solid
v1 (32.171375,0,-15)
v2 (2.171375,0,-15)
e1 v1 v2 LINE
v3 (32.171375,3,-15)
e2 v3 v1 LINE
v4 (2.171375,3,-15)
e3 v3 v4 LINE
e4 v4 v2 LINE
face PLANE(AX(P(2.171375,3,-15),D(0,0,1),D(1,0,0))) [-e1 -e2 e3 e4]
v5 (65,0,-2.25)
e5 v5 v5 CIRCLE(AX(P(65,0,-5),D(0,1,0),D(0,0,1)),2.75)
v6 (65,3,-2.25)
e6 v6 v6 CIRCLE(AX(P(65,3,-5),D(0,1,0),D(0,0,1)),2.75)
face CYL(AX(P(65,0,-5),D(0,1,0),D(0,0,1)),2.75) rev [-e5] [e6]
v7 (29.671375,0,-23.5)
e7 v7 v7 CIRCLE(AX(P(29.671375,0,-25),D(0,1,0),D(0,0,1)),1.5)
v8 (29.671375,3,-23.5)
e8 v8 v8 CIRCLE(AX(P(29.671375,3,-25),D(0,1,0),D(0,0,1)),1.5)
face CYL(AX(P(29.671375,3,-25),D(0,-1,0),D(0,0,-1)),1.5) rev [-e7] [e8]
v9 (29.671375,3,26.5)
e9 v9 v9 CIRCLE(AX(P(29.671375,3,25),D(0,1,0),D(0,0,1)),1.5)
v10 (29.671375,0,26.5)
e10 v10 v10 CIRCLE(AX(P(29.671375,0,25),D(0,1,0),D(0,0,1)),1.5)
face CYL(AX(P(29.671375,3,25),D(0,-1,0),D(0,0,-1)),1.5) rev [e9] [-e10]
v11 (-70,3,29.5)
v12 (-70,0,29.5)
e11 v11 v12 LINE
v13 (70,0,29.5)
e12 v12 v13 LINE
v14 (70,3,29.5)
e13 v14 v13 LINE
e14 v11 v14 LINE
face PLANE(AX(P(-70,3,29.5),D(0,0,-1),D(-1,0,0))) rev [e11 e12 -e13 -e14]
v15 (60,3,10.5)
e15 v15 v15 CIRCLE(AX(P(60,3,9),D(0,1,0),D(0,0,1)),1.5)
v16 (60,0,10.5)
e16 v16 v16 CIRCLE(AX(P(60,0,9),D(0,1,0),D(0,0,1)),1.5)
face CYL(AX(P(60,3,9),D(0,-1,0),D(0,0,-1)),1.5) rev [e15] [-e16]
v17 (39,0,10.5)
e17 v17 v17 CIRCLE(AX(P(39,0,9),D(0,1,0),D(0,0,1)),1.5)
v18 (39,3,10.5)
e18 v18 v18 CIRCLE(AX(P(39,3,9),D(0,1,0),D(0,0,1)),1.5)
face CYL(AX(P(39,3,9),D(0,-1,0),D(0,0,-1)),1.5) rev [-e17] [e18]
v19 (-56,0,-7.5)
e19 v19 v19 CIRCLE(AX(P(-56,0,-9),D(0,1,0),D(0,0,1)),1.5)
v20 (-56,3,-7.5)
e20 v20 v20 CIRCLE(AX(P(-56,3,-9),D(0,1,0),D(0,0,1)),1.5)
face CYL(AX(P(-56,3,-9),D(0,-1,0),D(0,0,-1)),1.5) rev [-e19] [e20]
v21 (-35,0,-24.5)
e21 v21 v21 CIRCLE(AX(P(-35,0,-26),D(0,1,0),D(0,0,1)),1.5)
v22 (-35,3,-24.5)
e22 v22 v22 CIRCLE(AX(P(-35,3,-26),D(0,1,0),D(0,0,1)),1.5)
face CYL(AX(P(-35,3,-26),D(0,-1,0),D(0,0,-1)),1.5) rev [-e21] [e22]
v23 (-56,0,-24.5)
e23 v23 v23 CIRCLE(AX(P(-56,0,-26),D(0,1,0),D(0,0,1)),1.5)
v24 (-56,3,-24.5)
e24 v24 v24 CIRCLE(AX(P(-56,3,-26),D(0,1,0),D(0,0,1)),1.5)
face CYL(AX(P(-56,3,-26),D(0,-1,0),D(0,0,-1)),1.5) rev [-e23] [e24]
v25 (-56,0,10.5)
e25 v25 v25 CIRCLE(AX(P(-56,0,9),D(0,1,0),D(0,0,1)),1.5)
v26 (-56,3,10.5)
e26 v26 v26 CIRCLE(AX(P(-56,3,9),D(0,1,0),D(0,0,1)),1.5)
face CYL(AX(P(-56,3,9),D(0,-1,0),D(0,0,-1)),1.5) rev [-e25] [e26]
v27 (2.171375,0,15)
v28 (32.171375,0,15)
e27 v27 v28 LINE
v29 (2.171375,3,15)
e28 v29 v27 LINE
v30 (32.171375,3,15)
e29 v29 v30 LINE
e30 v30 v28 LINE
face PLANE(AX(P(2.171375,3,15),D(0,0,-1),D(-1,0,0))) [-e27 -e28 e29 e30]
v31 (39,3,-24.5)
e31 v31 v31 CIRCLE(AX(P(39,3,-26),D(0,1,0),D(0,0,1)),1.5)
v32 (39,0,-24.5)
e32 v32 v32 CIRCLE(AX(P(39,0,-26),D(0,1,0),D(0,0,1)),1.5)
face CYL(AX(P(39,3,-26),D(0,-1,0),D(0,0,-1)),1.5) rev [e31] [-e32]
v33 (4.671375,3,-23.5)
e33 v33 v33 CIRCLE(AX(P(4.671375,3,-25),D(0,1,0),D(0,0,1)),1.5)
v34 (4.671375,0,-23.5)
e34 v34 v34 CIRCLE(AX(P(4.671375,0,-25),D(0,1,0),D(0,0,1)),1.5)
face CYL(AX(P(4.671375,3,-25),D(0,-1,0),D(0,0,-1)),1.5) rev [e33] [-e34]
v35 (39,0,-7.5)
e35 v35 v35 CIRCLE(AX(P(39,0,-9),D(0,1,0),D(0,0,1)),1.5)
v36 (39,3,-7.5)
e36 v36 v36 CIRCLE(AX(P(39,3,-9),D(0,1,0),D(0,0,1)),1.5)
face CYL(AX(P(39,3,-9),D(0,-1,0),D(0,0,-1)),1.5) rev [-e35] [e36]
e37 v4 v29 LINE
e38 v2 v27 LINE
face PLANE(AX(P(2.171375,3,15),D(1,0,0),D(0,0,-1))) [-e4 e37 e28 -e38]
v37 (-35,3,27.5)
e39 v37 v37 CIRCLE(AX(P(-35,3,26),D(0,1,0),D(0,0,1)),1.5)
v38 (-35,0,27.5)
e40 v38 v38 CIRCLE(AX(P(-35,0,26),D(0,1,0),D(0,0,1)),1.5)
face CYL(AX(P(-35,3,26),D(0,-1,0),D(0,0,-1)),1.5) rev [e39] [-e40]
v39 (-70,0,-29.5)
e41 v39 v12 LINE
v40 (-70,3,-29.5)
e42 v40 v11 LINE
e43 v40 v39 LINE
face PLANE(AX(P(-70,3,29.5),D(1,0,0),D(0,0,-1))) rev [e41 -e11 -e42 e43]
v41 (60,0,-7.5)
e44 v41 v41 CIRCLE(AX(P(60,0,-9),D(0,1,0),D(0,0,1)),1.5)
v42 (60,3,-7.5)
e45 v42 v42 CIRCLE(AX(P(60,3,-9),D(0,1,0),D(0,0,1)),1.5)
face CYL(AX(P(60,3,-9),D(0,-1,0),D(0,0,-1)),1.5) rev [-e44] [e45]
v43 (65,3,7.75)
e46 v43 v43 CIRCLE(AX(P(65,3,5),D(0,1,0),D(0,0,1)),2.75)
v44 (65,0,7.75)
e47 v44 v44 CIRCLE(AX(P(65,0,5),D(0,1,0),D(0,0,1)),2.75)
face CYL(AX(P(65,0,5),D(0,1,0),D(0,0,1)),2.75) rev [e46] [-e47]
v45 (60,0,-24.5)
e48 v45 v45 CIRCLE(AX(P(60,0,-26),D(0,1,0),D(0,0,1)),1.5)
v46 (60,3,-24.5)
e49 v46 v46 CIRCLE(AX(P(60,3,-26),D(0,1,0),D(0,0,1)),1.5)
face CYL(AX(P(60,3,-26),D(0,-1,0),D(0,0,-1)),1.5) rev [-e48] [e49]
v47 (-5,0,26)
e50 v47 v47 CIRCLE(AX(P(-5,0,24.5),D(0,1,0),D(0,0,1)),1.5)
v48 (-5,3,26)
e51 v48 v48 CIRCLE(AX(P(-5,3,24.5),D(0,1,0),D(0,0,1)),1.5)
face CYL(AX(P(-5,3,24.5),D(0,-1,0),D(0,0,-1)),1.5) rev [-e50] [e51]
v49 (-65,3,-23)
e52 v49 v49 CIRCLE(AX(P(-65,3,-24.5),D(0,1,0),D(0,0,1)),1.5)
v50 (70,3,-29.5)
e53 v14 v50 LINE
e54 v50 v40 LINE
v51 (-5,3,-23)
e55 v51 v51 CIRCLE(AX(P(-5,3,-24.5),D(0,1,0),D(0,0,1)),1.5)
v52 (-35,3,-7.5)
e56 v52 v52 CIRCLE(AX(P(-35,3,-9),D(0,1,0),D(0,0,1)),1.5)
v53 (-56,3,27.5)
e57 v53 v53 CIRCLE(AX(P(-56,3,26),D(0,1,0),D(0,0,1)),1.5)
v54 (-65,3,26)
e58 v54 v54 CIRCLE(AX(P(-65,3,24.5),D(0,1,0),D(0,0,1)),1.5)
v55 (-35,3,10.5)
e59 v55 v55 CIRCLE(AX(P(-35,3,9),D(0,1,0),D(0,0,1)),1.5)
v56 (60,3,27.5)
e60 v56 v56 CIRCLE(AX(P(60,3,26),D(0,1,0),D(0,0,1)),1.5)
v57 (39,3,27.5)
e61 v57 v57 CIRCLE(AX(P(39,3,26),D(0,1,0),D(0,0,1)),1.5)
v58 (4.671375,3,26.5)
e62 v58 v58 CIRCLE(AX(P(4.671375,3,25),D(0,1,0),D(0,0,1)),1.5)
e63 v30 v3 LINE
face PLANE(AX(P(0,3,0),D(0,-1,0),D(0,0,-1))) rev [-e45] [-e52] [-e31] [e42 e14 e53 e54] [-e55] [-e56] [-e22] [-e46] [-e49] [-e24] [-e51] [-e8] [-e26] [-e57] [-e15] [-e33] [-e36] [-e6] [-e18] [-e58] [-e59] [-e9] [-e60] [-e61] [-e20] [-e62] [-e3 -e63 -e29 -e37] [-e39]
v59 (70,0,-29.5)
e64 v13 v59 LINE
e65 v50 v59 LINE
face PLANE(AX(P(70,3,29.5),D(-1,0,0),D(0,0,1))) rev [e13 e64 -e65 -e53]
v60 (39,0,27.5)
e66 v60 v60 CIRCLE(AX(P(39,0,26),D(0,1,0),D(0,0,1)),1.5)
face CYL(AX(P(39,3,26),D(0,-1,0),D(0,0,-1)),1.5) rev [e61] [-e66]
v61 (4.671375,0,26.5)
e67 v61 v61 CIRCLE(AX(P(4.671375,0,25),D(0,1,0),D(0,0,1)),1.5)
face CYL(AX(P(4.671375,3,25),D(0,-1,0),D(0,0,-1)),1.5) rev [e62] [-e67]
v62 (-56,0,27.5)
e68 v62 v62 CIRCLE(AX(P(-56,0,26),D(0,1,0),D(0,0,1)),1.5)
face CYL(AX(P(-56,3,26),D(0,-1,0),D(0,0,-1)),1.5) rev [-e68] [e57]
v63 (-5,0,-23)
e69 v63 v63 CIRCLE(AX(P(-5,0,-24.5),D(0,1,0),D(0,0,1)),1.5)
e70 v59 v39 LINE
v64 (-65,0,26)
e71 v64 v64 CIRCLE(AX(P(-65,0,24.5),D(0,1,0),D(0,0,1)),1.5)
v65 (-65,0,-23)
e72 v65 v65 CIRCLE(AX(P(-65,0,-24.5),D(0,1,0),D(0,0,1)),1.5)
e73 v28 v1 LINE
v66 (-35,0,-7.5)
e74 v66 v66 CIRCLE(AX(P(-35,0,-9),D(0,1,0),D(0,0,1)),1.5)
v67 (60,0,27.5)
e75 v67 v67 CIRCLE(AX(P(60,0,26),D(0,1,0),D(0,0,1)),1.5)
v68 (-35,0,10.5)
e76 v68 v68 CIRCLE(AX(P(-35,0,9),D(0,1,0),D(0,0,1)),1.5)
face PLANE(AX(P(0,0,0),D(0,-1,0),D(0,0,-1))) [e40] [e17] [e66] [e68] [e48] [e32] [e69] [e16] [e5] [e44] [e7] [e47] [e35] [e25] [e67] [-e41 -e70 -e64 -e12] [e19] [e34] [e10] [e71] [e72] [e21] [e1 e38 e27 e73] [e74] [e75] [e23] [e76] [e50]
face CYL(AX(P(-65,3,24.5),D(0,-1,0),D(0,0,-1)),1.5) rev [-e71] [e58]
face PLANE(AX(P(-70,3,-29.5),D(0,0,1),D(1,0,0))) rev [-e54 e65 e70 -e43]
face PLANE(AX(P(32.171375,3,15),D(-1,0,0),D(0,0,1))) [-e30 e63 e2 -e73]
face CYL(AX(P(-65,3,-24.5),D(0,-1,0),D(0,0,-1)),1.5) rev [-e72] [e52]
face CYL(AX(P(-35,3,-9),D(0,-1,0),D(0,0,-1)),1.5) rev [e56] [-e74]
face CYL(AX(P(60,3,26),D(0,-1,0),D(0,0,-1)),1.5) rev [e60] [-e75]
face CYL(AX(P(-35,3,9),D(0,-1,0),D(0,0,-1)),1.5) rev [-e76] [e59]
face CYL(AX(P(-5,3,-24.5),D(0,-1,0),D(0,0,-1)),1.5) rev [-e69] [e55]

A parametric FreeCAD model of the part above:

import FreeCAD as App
import Part
import Sketcher
from FreeCAD import Vector


def add_polygon(sketch, points):
    """Adds a closed chain of lines whose ends are joined by coincident constraints."""
    first, n = sketch.GeometryCount, len(points)
    for a, b in zip(points, points[1:] + points[:1]):
        sketch.addGeometry(Part.LineSegment(App.Vector(*a, 0), App.Vector(*b, 0)), False)
    for i in range(n):
        sketch.addConstraint(Sketcher.Constraint("Coincident", first + i, 2, first + (i + 1) % n, 1))

doc = App.newDocument("Part")
body = doc.addObject("PartDesign::Body", "Body")

# Sketch on XZ plane
sketch1 = body.newObject("Sketcher::SketchObject", "Sketch")
sketch1.AttachmentSupport = (doc.getObject("XZ_Plane"), [""])
sketch1.MapMode = "FlatFace"
add_polygon(sketch1, [(-70, -29.5), (-70, 29.5), (70, 29.5), (70, -29.5)])  # lines 0-3
sketch1.addGeometry(Part.Circle(Vector(-65, 24.5, 0), Vector(0, 0, 1), 1.5), False)  # 4
sketch1.addGeometry(Part.Circle(Vector(-56, 26, 0), Vector(0, 0, 1), 1.5), False)  # 5
sketch1.addGeometry(Part.Circle(Vector(-35, 26, 0), Vector(0, 0, 1), 1.5), False)  # 6
sketch1.addGeometry(Part.Circle(Vector(-5, 24.5, 0), Vector(0, 0, 1), 1.5), False)  # 7
sketch1.addGeometry(Part.Circle(Vector(-56, 9, 0), Vector(0, 0, 1), 1.5), False)  # 8
sketch1.addGeometry(Part.Circle(Vector(-35, 9, 0), Vector(0, 0, 1), 1.5), False)  # 9
sketch1.addGeometry(Part.Circle(Vector(4.7, 25, 0), Vector(0, 0, 1), 1.5), False)  # 10
sketch1.addGeometry(Part.Circle(Vector(29.7, 25, 0), Vector(0, 0, 1), 1.5), False)  # 11
sketch1.addGeometry(Part.Circle(Vector(39, 26, 0), Vector(0, 0, 1), 1.5), False)  # 12
sketch1.addGeometry(Part.Circle(Vector(60, 26, 0), Vector(0, 0, 1), 1.5), False)  # 13
sketch1.addGeometry(Part.Circle(Vector(39, 9, 0), Vector(0, 0, 1), 1.5), False)  # 14
sketch1.addGeometry(Part.Circle(Vector(60, 9, 0), Vector(0, 0, 1), 1.5), False)  # 15
sketch1.addGeometry(Part.Circle(Vector(-56, -9, 0), Vector(0, 0, 1), 1.5), False)  # 16
sketch1.addGeometry(Part.Circle(Vector(-35, -9, 0), Vector(0, 0, 1), 1.5), False)  # 17
sketch1.addGeometry(Part.Circle(Vector(-65, -24.5, 0), Vector(0, 0, 1), 1.5), False)  # 18
sketch1.addGeometry(Part.Circle(Vector(-56, -26, 0), Vector(0, 0, 1), 1.5), False)  # 19
sketch1.addGeometry(Part.Circle(Vector(-35, -26, 0), Vector(0, 0, 1), 1.5), False)  # 20
sketch1.addGeometry(Part.Circle(Vector(-5, -24.5, 0), Vector(0, 0, 1), 1.5), False)  # 21
add_polygon(sketch1, [(32.2, 15), (2.2, 15), (2.2, -15), (32.2, -15)])  # lines 22-25
sketch1.addGeometry(Part.Circle(Vector(39, -9, 0), Vector(0, 0, 1), 1.5), False)  # 26
sketch1.addGeometry(Part.Circle(Vector(60, -9, 0), Vector(0, 0, 1), 1.5), False)  # 27
sketch1.addGeometry(Part.Circle(Vector(4.7, -25, 0), Vector(0, 0, 1), 1.5), False)  # 28
sketch1.addGeometry(Part.Circle(Vector(29.7, -25, 0), Vector(0, 0, 1), 1.5), False)  # 29
sketch1.addGeometry(Part.Circle(Vector(39, -26, 0), Vector(0, 0, 1), 1.5), False)  # 30
sketch1.addGeometry(Part.Circle(Vector(60, -26, 0), Vector(0, 0, 1), 1.5), False)  # 31
sketch1.addConstraint(Sketcher.Constraint("Vertical", 0))
sketch1.addConstraint(Sketcher.Constraint("Horizontal", 1))
sketch1.addConstraint(Sketcher.Constraint("Vertical", 2))
sketch1.addConstraint(Sketcher.Constraint("Horizontal", 3))
sketch1.addConstraint(Sketcher.Constraint("Horizontal", 22))
sketch1.addConstraint(Sketcher.Constraint("Vertical", 23))
sketch1.addConstraint(Sketcher.Constraint("Horizontal", 24))
sketch1.addConstraint(Sketcher.Constraint("Vertical", 25))
sketch1.addConstraint(Sketcher.Constraint("Equal", 4, 5))
sketch1.addConstraint(Sketcher.Constraint("Equal", 5, 6))
sketch1.addConstraint(Sketcher.Constraint("Equal", 6, 7))
sketch1.addConstraint(Sketcher.Constraint("Equal", 7, 8))
sketch1.addConstraint(Sketcher.Constraint("Equal", 8, 9))
sketch1.addConstraint(Sketcher.Constraint("Equal", 9, 10))
sketch1.addConstraint(Sketcher.Constraint("Equal", 10, 11))
sketch1.addConstraint(Sketcher.Constraint("Equal", 11, 12))
sketch1.addConstraint(Sketcher.Constraint("Equal", 12, 13))
sketch1.addConstraint(Sketcher.Constraint("Equal", 13, 14))
sketch1.addConstraint(Sketcher.Constraint("Equal", 14, 15))
sketch1.addConstraint(Sketcher.Constraint("Equal", 15, 16))
sketch1.addConstraint(Sketcher.Constraint("Equal", 16, 17))
sketch1.addConstraint(Sketcher.Constraint("Equal", 17, 18))
sketch1.addConstraint(Sketcher.Constraint("Equal", 18, 19))
sketch1.addConstraint(Sketcher.Constraint("Equal", 19, 20))
sketch1.addConstraint(Sketcher.Constraint("Equal", 20, 21))
sketch1.addConstraint(Sketcher.Constraint("Equal", 21, 26))
sketch1.addConstraint(Sketcher.Constraint("Equal", 26, 27))
sketch1.addConstraint(Sketcher.Constraint("Equal", 27, 28))
sketch1.addConstraint(Sketcher.Constraint("Equal", 28, 29))
sketch1.addConstraint(Sketcher.Constraint("Equal", 29, 30))
sketch1.addConstraint(Sketcher.Constraint("Equal", 30, 31))
sketch1.addConstraint(Sketcher.Constraint("Symmetric", 0, 2, 2, 2, -1, 1))
sketch1.addConstraint(Sketcher.Constraint("Symmetric", 8, 3, 16, 3, -1))
sketch1.addConstraint(Sketcher.Constraint("Symmetric", 9, 3, 17, 3, -1))
sketch1.addConstraint(Sketcher.Constraint("Symmetric", 4, 3, 18, 3, -1))
sketch1.addConstraint(Sketcher.Constraint("Symmetric", 5, 3, 19, 3, -1))
sketch1.addConstraint(Sketcher.Constraint("Symmetric", 6, 3, 20, 3, -1))
sketch1.addConstraint(Sketcher.Constraint("Symmetric", 7, 3, 21, 3, -1))
sketch1.addConstraint(Sketcher.Constraint("Symmetric", 14, 3, 26, 3, -1))
sketch1.addConstraint(Sketcher.Constraint("Symmetric", 15, 3, 27, 3, -1))
sketch1.addConstraint(Sketcher.Constraint("Symmetric", 10, 3, 28, 3, -1))
sketch1.addConstraint(Sketcher.Constraint("Symmetric", 11, 3, 29, 3, -1))
sketch1.addConstraint(Sketcher.Constraint("Symmetric", 12, 3, 30, 3, -1))
sketch1.addConstraint(Sketcher.Constraint("Symmetric", 13, 3, 31, 3, -1))
sketch1.addConstraint(Sketcher.Constraint("Horizontal", 5, 3, 6, 3))
sketch1.addConstraint(Sketcher.Constraint("Horizontal", 4, 3, 7, 3))
sketch1.addConstraint(Sketcher.Constraint("Horizontal", 8, 3, 9, 3))
sketch1.addConstraint(Sketcher.Constraint("Horizontal", 10, 3, 11, 3))
sketch1.addConstraint(Sketcher.Constraint("Horizontal", 6, 3, 12, 3))
sketch1.addConstraint(Sketcher.Constraint("Horizontal", 12, 3, 13, 3))
sketch1.addConstraint(Sketcher.Constraint("Horizontal", 9, 3, 14, 3))
sketch1.addConstraint(Sketcher.Constraint("Horizontal", 14, 3, 15, 3))
sketch1.addConstraint(Sketcher.Constraint("Vertical", 5, 3, 8, 3))
sketch1.addConstraint(Sketcher.Constraint("Vertical", 6, 3, 9, 3))
sketch1.addConstraint(Sketcher.Constraint("Vertical", 12, 3, 14, 3))
sketch1.addConstraint(Sketcher.Constraint("Vertical", 13, 3, 15, 3))
sketch1.addConstraint(Sketcher.Constraint("Equal", 24, 23))
sketch1.addConstraint(Sketcher.Constraint("Diameter", 4, 3.0))
sketch1.addConstraint(Sketcher.Constraint("DistanceX", 1, 1, 1, 2, 140.0))
sketch1.addConstraint(Sketcher.Constraint("DistanceX", 22, 2, 22, 1, 30.0))
sketch1.addConstraint(Sketcher.Constraint("DistanceY", 0, 1, 0, 2, 59.0))
sketch1.addConstraint(Sketcher.Constraint("DistanceX", 4, 3, -1, 1, 65.0))
sketch1.addConstraint(Sketcher.Constraint("DistanceX", 5, 3, -1, 1, 56.0))
sketch1.addConstraint(Sketcher.Constraint("DistanceY", -1, 1, 5, 3, 26.0))
sketch1.addConstraint(Sketcher.Constraint("DistanceX", 6, 3, -1, 1, 35.0))
sketch1.addConstraint(Sketcher.Constraint("DistanceX", 7, 3, -1, 1, 5.0))
sketch1.addConstraint(Sketcher.Constraint("DistanceY", -1, 1, 8, 3, 9.0))
sketch1.addConstraint(Sketcher.Constraint("DistanceY", -1, 1, 10, 3, 25.0))
sketch1.addConstraint(Sketcher.Constraint("DistanceX", -1, 1, 12, 3, 39.0))
sketch1.addConstraint(Sketcher.Constraint("DistanceX", -1, 1, 13, 3, 60.0))
sketch1.addConstraint(Sketcher.Constraint("DistanceY", -1, 1, 22, 2, 15.0))
sketch1.addConstraint(Sketcher.Constraint("DistanceX", 10, 3, 11, 3, 25.0))
sketch1.addConstraint(Sketcher.Constraint("DistanceY", 18, 3, 4, 3, 49.0))
sketch1.addConstraint(Sketcher.Constraint("DistanceX", 22, 2, 10, 3, 2.5))
sketch1.addConstraint(Sketcher.Constraint("DistanceX", -1, 1, 10, 3, 4.671375))
pad1 = body.newObject("PartDesign::Pad", "Pad")
pad1.Profile = sketch1
pad1.Length = 3
pad1.Reversed = True

# Sketch on XZ plane
sketch2 = body.newObject("Sketcher::SketchObject", "Sketch001")
sketch2.AttachmentSupport = (doc.getObject("XZ_Plane"), [""])
sketch2.MapMode = "FlatFace"
sketch2.AttachmentOffset = App.Placement(Vector(0, 0, -3), App.Rotation())
sketch2.addGeometry(Part.Circle(Vector(65, -5, 0), Vector(0, 0, 1), 2.8), False)
sketch2.addGeometry(Part.Circle(Vector(65, 5, 0), Vector(0, 0, 1), 2.8), False)
sketch2.addConstraint(Sketcher.Constraint("Equal", 0, 1))
sketch2.addConstraint(Sketcher.Constraint("Symmetric", 0, 3, 1, 3, -1))
sketch2.addConstraint(Sketcher.Constraint("Diameter", 0, 5.5))
sketch2.addConstraint(Sketcher.Constraint("DistanceX", -1, 1, 0, 3, 65.0))
sketch2.addConstraint(Sketcher.Constraint("DistanceY", 0, 3, -1, 1, 5.0))
pocket1 = body.newObject("PartDesign::Pocket", "Pocket")
pocket1.Profile = sketch2
pocket1.Type = "ThroughAll"
pocket1.Reversed = True

doc.recompute()
